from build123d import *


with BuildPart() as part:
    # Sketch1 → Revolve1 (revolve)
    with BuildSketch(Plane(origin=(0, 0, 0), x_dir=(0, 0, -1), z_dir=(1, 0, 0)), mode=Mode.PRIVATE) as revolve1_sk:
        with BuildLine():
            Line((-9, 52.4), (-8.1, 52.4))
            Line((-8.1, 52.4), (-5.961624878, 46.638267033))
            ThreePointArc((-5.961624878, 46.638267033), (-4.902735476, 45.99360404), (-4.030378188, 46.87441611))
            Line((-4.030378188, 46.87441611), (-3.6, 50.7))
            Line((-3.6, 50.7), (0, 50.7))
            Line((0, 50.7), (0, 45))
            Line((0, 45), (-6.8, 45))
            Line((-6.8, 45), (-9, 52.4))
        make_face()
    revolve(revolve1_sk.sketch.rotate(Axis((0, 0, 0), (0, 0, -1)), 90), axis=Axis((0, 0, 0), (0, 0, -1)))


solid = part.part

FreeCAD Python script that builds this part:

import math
import FreeCAD as App
import Part
import Sketcher

V = App.Vector

doc = App.newDocument("Part")
body = doc.addObject("PartDesign::Body", "Body")

sketch1 = body.newObject("Sketcher::SketchObject", "Sketch")
sketch1.AttachmentSupport = (doc.getObject("YZ_Plane"), [""])
sketch1.MapMode = "FlatFace"
sketch1.addGeometry([
    Part.LineSegment(V(52.4, 8.1, 0), V(52.4, 9, 0)),
    Part.LineSegment(V(52.4, 9, 0), V(45, 6.8, 0)),
    Part.LineSegment(V(45, 6.8, 0), V(45, 0, 0)),
    Part.LineSegment(V(45, 0, 0), V(50.7, 0, 0)),
    Part.LineSegment(V(50.7, 0, 0), V(50.7, 3.6, 0)),
    Part.LineSegment(V(50.7, 3.6, 0), V(46.9, 4, 0)),
    Part.ArcOfCircle(Part.Circle(V(47, 5, 0), V(0, 0, 1), 1), math.radians(110), math.radians(264)),
    Part.LineSegment(V(46.6, 6, 0), V(52.4, 8.1, 0)),
], False)
sketch1.addConstraint([
    Sketcher.Constraint("Coincident", 0, 2, 1, 1),
    Sketcher.Constraint("Coincident", 1, 2, 2, 1),
    Sketcher.Constraint("Coincident", 2, 2, 3, 1),
    Sketcher.Constraint("Coincident", 3, 2, 4, 1),
    Sketcher.Constraint("Coincident", 4, 2, 5, 1),
    Sketcher.Constraint("Tangent", 5, 2, 6, 2),
    Sketcher.Constraint("Tangent", 6, 1, 7, 1),
    Sketcher.Constraint("Coincident", 7, 2, 0, 1),
    Sketcher.Constraint("Vertical", 0),
    Sketcher.Constraint("Vertical", 2),
    Sketcher.Constraint("Horizontal", 3),
    Sketcher.Constraint("Vertical", 4),
    Sketcher.Constraint("PointOnObject", 2, 2, -1),
    Sketcher.Constraint("Radius", 6, 1.0),
    Sketcher.Constraint("DistanceX", 3, 1, 3, 2, 5.7),
    Sketcher.Constraint("DistanceY", 0, 1, 0, 2, 0.9),
    Sketcher.Constraint("DistanceY", 2, 2, 2, 1, 6.8),
    Sketcher.Constraint("DistanceY", 4, 1, 4, 2, 3.6),
    Sketcher.Constraint("DistanceY", -1, 1, 0, 2, 9.0),
    Sketcher.Constraint("DistanceX", -1, 1, 1, 2, 45.0),
    Sketcher.Constraint("DistanceX", -1, 1, 0, 2, 52.4),
    Sketcher.Constraint("DistanceX", -1, 1, 6, 3, 46.986211),
    Sketcher.Constraint("DistanceY", -1, 1, 6, 3, 5.02411),
])
revolution = body.newObject("PartDesign::Revolution", "Revolution")
revolution.Profile = sketch1
revolution.ReferenceAxis = (sketch1, ["V_Axis"])
revolution.Angle = 360

doc.recompute()
